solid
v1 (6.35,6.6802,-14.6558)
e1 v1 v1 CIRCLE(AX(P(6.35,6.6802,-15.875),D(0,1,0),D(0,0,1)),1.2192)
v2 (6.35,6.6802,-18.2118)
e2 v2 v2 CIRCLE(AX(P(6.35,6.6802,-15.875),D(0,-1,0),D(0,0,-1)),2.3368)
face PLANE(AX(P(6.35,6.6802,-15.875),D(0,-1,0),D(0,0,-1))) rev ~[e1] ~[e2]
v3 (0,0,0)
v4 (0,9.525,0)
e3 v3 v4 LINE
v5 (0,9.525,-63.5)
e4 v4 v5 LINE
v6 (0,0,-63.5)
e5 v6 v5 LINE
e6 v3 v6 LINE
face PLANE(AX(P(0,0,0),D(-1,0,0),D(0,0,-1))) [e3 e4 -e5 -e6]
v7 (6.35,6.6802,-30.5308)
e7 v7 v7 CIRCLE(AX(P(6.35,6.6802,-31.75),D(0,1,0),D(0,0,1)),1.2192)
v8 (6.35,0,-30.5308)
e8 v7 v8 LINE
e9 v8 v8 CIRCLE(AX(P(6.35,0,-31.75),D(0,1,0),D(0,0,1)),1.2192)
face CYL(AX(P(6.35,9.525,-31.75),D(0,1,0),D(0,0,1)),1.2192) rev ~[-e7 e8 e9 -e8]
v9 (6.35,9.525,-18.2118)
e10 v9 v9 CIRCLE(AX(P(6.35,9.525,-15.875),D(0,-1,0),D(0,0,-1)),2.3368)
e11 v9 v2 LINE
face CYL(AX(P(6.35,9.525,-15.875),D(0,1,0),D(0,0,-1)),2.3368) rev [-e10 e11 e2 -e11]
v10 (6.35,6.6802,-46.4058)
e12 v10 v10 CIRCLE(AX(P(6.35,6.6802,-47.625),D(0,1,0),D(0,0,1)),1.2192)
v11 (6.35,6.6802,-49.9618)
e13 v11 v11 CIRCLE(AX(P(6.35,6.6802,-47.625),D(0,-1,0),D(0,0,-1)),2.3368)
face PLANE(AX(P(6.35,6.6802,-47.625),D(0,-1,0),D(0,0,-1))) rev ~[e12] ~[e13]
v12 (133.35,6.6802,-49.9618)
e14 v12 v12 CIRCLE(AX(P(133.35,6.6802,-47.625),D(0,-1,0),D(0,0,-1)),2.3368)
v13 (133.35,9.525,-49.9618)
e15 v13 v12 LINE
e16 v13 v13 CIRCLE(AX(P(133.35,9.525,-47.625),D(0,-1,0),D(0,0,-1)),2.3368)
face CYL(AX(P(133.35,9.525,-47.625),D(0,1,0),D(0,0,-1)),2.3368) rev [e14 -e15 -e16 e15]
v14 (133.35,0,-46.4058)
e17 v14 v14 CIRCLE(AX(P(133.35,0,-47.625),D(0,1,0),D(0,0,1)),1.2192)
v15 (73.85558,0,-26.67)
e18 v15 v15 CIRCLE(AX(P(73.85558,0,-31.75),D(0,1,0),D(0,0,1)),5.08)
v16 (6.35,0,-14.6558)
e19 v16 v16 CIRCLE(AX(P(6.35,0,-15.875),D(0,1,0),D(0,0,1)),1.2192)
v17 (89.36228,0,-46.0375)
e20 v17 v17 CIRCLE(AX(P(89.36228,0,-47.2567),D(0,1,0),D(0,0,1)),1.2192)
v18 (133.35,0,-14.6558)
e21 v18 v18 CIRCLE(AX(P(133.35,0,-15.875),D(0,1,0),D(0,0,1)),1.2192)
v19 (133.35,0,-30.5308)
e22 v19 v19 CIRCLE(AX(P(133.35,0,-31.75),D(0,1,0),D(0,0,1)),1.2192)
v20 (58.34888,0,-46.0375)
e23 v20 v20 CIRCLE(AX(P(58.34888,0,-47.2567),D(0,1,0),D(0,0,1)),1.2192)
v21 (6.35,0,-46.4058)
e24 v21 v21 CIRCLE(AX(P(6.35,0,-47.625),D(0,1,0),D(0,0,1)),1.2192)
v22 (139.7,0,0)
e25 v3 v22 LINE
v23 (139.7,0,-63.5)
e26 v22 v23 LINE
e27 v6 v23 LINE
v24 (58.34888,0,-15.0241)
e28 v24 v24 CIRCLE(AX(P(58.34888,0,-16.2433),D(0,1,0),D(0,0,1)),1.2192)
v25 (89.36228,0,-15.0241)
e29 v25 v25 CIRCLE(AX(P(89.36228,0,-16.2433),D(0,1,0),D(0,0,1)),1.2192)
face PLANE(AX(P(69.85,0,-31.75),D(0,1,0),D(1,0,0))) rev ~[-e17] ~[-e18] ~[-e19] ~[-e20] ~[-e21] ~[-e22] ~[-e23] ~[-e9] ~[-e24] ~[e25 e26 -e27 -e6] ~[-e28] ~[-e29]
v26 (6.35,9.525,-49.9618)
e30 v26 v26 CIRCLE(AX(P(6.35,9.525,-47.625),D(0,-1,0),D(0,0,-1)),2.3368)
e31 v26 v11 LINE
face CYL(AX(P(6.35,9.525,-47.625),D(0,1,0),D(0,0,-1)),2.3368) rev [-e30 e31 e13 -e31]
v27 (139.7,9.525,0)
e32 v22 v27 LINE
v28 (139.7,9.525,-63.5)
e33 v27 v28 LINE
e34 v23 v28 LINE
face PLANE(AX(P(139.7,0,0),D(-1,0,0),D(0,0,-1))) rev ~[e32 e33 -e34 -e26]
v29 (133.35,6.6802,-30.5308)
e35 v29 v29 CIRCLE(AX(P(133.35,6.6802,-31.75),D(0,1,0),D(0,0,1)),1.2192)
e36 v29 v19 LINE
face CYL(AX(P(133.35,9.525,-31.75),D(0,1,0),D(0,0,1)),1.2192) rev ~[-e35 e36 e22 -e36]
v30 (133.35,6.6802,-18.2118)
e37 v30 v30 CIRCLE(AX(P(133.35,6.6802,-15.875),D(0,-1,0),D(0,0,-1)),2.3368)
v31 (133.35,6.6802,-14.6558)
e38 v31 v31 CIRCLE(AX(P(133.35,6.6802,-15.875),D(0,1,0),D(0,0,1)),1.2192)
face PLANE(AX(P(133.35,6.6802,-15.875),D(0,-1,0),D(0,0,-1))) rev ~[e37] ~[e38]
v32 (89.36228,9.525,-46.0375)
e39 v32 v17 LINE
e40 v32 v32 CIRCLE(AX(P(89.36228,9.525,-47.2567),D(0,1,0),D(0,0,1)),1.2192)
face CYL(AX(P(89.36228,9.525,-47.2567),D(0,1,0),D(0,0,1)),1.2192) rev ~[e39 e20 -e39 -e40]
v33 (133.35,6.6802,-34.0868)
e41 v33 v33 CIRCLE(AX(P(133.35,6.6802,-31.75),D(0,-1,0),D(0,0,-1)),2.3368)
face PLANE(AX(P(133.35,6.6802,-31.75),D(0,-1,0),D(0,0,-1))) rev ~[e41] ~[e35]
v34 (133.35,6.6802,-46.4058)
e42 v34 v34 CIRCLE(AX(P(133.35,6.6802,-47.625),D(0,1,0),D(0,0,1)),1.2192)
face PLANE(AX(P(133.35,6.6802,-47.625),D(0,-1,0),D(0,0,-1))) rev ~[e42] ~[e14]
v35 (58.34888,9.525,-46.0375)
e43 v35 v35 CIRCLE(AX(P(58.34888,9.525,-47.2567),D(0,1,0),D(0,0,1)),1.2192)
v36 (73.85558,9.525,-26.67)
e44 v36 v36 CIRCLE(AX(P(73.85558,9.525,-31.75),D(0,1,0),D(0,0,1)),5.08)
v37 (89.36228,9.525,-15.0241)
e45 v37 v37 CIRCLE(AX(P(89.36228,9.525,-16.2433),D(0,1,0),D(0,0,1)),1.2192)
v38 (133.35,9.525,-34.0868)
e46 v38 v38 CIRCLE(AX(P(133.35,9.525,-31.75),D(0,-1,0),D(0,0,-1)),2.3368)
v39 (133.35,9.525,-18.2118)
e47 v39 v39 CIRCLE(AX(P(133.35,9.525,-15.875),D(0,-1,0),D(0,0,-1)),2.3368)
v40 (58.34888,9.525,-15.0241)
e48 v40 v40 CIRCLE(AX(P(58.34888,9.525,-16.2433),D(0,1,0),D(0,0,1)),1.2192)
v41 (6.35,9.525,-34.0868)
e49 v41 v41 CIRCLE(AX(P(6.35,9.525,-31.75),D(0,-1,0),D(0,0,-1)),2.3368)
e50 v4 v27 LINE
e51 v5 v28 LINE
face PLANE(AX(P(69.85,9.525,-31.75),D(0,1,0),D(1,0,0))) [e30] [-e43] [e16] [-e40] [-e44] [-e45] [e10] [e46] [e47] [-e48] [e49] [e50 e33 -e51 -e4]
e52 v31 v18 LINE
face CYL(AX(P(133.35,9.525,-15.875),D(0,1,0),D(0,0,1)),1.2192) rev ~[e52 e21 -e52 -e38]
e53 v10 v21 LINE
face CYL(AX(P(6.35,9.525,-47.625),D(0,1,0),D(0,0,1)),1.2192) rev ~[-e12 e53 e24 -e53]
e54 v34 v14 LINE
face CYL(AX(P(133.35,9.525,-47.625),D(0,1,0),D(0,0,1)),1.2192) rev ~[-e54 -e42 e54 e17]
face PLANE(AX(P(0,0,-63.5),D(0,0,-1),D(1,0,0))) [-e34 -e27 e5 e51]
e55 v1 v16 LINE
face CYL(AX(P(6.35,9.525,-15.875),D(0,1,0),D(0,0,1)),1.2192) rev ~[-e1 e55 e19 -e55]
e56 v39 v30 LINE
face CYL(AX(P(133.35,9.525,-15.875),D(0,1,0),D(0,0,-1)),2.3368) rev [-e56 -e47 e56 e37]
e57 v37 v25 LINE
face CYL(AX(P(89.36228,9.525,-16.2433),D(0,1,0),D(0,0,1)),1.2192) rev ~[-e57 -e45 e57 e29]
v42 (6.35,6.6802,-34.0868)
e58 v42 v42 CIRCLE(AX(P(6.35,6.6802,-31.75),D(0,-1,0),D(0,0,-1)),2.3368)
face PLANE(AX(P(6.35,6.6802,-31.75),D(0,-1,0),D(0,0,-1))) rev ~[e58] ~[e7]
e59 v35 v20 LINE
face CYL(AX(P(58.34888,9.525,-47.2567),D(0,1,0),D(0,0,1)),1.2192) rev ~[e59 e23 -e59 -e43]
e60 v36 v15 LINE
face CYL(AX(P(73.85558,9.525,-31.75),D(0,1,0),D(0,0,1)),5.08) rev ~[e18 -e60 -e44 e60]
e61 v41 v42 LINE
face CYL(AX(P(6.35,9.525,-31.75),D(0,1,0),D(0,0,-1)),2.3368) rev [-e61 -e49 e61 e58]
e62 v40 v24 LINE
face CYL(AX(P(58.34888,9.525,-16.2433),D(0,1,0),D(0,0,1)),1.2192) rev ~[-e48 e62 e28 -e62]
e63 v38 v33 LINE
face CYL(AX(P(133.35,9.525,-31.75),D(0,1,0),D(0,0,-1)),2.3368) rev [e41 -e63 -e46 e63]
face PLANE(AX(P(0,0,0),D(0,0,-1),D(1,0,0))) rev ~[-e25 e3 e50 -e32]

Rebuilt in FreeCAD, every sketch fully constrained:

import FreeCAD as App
import Part
import Sketcher
Q = App.Units.Quantity

doc = App.newDocument("Part")
params = doc.addObject("Spreadsheet::Sheet", "Params")
for row, (alias, value) in enumerate([
    ("sketch1_width", "5.5 in"),
    ("sketch1_height", "2.5 in"),
    ("pad1_length", "0.375 in"),
    ("sketch2_diameter", "0.4 in"),
    ("sketch2_diameter2", "0.096 in"),
    ("pocket1_length", "0.375 in"),
    ("sketch3_diameter", "0.184 in"),
    ("pocket2_length", "0.112 in"),
    ("sketch4_diameter", "0.096 in"),
], start=1):
    params.set(f"A{row}", alias)
    params.set(f"B{row}", "=" + value)
    params.setAlias(f"B{row}", alias)

body = doc.addObject("PartDesign::Body", "Body")

# Sketch on XZ plane
sketch1 = body.newObject("Sketcher::SketchObject", "Sketch")
sketch1.AttachmentSupport = (doc.getObject("XZ_Plane"), [""])
sketch1.MapMode = "FlatFace"
sketch1.addGeometry(Part.LineSegment(App.Vector(0, -64, 0), App.Vector(0, 0, 0)), False)
sketch1.addGeometry(Part.LineSegment(App.Vector(0, 0, 0), App.Vector(140, 0, 0)), False)
sketch1.addGeometry(Part.LineSegment(App.Vector(140, 0, 0), App.Vector(140, -64, 0)), False)
sketch1.addGeometry(Part.LineSegment(App.Vector(140, -64, 0), App.Vector(0, -64, 0)), False)
sketch1.addConstraint(Sketcher.Constraint("Coincident", 0, 2, 1, 1))
sketch1.addConstraint(Sketcher.Constraint("Coincident", 1, 2, 2, 1))
sketch1.addConstraint(Sketcher.Constraint("Coincident", 2, 2, 3, 1))
sketch1.addConstraint(Sketcher.Constraint("Coincident", 3, 2, 0, 1))
sketch1.addConstraint(Sketcher.Constraint("Vertical", 0))
sketch1.addConstraint(Sketcher.Constraint("Horizontal", 1))
sketch1.addConstraint(Sketcher.Constraint("Vertical", 2))
sketch1.addConstraint(Sketcher.Constraint("Horizontal", 3))
sketch1.addConstraint(Sketcher.Constraint("Coincident", 0, 2, -1, 1))
sketch1.addConstraint(Sketcher.Constraint("DistanceX", 1, 1, 1, 2, Q("5.5 in")))
sketch1.addConstraint(Sketcher.Constraint("DistanceY", 0, 1, 0, 2, Q("2.5 in")))
sketch1.setExpression("Constraints[9]", "Params.sketch1_width")
sketch1.setExpression("Constraints[10]", "Params.sketch1_height")
pad1 = body.newObject("PartDesign::Pad", "Pad")
pad1.Profile = sketch1
pad1.setExpression("Length", "Params.pad1_length")
pad1.Reversed = True

# Sketch on XZ plane
sketch2 = body.newObject("Sketcher::SketchObject", "Sketch001")
sketch2.AttachmentSupport = (doc.getObject("XZ_Plane"), [""])
sketch2.MapMode = "FlatFace"
sketch2.AttachmentOffset = App.Placement(App.Vector(0, 0, -0.375 * 25.4), App.Rotation())
sketch2.addGeometry(Part.Circle(App.Vector(58.3, -47.3, 0), App.Vector(0, 0, 1), 1.2), False)
sketch2.addGeometry(Part.Circle(App.Vector(89.4, -47.3, 0), App.Vector(0, 0, 1), 1.2), False)
sketch2.addGeometry(Part.Circle(App.Vector(89.4, -16.2, 0), App.Vector(0, 0, 1), 1.2), False)
sketch2.addGeometry(Part.Circle(App.Vector(58.3, -16.2, 0), App.Vector(0, 0, 1), 1.2), False)
sketch2.addGeometry(Part.Circle(App.Vector(73.9, -31.8, 0), App.Vector(0, 0, 1), 5.1), False)
sketch2.addConstraint(Sketcher.Constraint("Equal", 0, 1))
sketch2.addConstraint(Sketcher.Constraint("Equal", 1, 2))
sketch2.addConstraint(Sketcher.Constraint("Equal", 2, 3))
sketch2.addConstraint(Sketcher.Constraint("Horizontal", 0, 3, 1, 3))
sketch2.addConstraint(Sketcher.Constraint("Horizontal", 2, 3, 3, 3))
sketch2.addConstraint(Sketcher.Constraint("Vertical", 1, 3, 2, 3))
sketch2.addConstraint(Sketcher.Constraint("Vertical", 0, 3, 3, 3))
sketch2.addConstraint(Sketcher.Constraint("Diameter", 4, Q("0.4 in")))
sketch2.addConstraint(Sketcher.Constraint("Diameter", 0, Q("0.096 in")))
sketch2.addConstraint(Sketcher.Constraint("DistanceY", 4, 3, -1, 1, Q("1.25 in")))
sketch2.addConstraint(Sketcher.Constraint("DistanceX", 0, 3, 1, 3, Q("1.221 in")))
sketch2.addConstraint(Sketcher.Constraint("DistanceY", 1, 3, 2, 3, Q("1.221 in")))
sketch2.addConstraint(Sketcher.Constraint("DistanceX", -1, 1, 0, 3, Q("2.2972 in")))
sketch2.addConstraint(Sketcher.Constraint("DistanceY", 0, 3, -1, 1, Q("1.8605 in")))
sketch2.addConstraint(Sketcher.Constraint("DistanceX", -1, 1, 4, 3, Q("2.9077 in")))
sketch2.setExpression("Constraints[7]", "Params.sketch2_diameter")
sketch2.setExpression("Constraints[8]", "Params.sketch2_diameter2")
pocket1 = body.newObject("PartDesign::Pocket", "Pocket")
pocket1.Profile = sketch2
pocket1.setExpression("Length", "Params.pocket1_length")
pocket1.Reversed = True

# Sketch on XZ plane
sketch3 = body.newObject("Sketcher::SketchObject", "Sketch002")
sketch3.AttachmentSupport = (doc.getObject("XZ_Plane"), [""])
sketch3.MapMode = "FlatFace"
sketch3.AttachmentOffset = App.Placement(App.Vector(0, 0, -0.375 * 25.4), App.Rotation())
sketch3.addGeometry(Part.Circle(App.Vector(6.3, -15.9, 0), App.Vector(0, 0, 1), 2.3), False)
sketch3.addGeometry(Part.Circle(App.Vector(6.3, -31.8, 0), App.Vector(0, 0, 1), 2.3), False)
sketch3.addGeometry(Part.Circle(App.Vector(6.3, -47.6, 0), App.Vector(0, 0, 1), 2.3), False)
sketch3.addGeometry(Part.Circle(App.Vector(133.3, -47.6, 0), App.Vector(0, 0, 1), 2.3), False)
sketch3.addGeometry(Part.Circle(App.Vector(133.3, -31.8, 0), App.Vector(0, 0, 1), 2.3), False)
sketch3.addGeometry(Part.Circle(App.Vector(133.3, -15.9, 0), App.Vector(0, 0, 1), 2.3), False)
sketch3.addConstraint(Sketcher.Constraint("Equal", 0, 1))
sketch3.addConstraint(Sketcher.Constraint("Equal", 1, 2))
sketch3.addConstraint(Sketcher.Constraint("Equal", 2, 3))
sketch3.addConstraint(Sketcher.Constraint("Equal", 3, 4))
sketch3.addConstraint(Sketcher.Constraint("Equal", 4, 5))
sketch3.addConstraint(Sketcher.Constraint("Horizontal", 2, 3, 3, 3))
sketch3.addConstraint(Sketcher.Constraint("Horizontal", 1, 3, 4, 3))
sketch3.addConstraint(Sketcher.Constraint("Horizontal", 0, 3, 5, 3))
sketch3.addConstraint(Sketcher.Constraint("Vertical", 0, 3, 1, 3))
sketch3.addConstraint(Sketcher.Constraint("Vertical", 1, 3, 2, 3))
sketch3.addConstraint(Sketcher.Constraint("Vertical", 3, 3, 4, 3))
sketch3.addConstraint(Sketcher.Constraint("Vertical", 4, 3, 5, 3))
sketch3.addConstraint(Sketcher.Constraint("Diameter", 0, Q("0.184 in")))
sketch3.addConstraint(Sketcher.Constraint("DistanceX", 2, 3, 3, 3, Q("5 in")))
sketch3.addConstraint(Sketcher.Constraint("DistanceX", -1, 1, 0, 3, Q("0.25 in")))
sketch3.addConstraint(Sketcher.Constraint("DistanceY", 1, 3, -1, 1, Q("1.25 in")))
sketch3.addConstraint(Sketcher.Constraint("DistanceY", 2, 3, 0, 3, Q("1.25 in")))
sketch3.addConstraint(Sketcher.Constraint("DistanceY", 0, 3, -1, 1, Q("0.625 in")))
sketch3.setExpression("Constraints[12]", "Params.sketch3_diameter")
pocket2 = body.newObject("PartDesign::Pocket", "Pocket001")
pocket2.Profile = sketch3
pocket2.setExpression("Length", "Params.pocket2_length")
pocket2.Reversed = True

# Sketch on XZ plane
sketch4 = body.newObject("Sketcher::SketchObject", "Sketch003")
sketch4.AttachmentSupport = (doc.getObject("XZ_Plane"), [""])
sketch4.MapMode = "FlatFace"
sketch4.AttachmentOffset = App.Placement(App.Vector(0, 0, -0.375 * 25.4), App.Rotation())
sketch4.addGeometry(Part.Circle(App.Vector(6.3, -47.6, 0), App.Vector(0, 0, 1), 1.2), False)
sketch4.addGeometry(Part.Circle(App.Vector(6.3, -31.8, 0), App.Vector(0, 0, 1), 1.2), False)
sketch4.addGeometry(Part.Circle(App.Vector(6.3, -15.9, 0), App.Vector(0, 0, 1), 1.2), False)
sketch4.addGeometry(Part.Circle(App.Vector(133.3, -15.9, 0), App.Vector(0, 0, 1), 1.2), False)
sketch4.addGeometry(Part.Circle(App.Vector(133.3, -31.8, 0), App.Vector(0, 0, 1), 1.2), False)
sketch4.addGeometry(Part.Circle(App.Vector(133.3, -47.6, 0), App.Vector(0, 0, 1), 1.2), False)
sketch4.addConstraint(Sketcher.Constraint("Equal", 0, 1))
sketch4.addConstraint(Sketcher.Constraint("Equal", 1, 2))
sketch4.addConstraint(Sketcher.Constraint("Equal", 2, 3))
sketch4.addConstraint(Sketcher.Constraint("Equal", 3, 4))
sketch4.addConstraint(Sketcher.Constraint("Equal", 4, 5))
sketch4.addConstraint(Sketcher.Constraint("Horizontal", 2, 3, 3, 3))
sketch4.addConstraint(Sketcher.Constraint("Horizontal", 1, 3, 4, 3))
sketch4.addConstraint(Sketcher.Constraint("Horizontal", 0, 3, 5, 3))
sketch4.addConstraint(Sketcher.Constraint("Vertical", 0, 3, 1, 3))
sketch4.addConstraint(Sketcher.Constraint("Vertical", 1, 3, 2, 3))
sketch4.addConstraint(Sketcher.Constraint("Vertical", 3, 3, 4, 3))
sketch4.addConstraint(Sketcher.Constraint("Vertical", 4, 3, 5, 3))
sketch4.addConstraint(Sketcher.Constraint("Diameter", 0, Q("0.096 in")))
sketch4.addConstraint(Sketcher.Constraint("DistanceX", 2, 3, 3, 3, Q("5 in")))
sketch4.addConstraint(Sketcher.Constraint("DistanceX", -1, 1, 0, 3, Q("0.25 in")))
sketch4.addConstraint(Sketcher.Constraint("DistanceY", 1, 3, -1, 1, Q("1.25 in")))
sketch4.addConstraint(Sketcher.Constraint("DistanceY", 0, 3, 2, 3, Q("1.25 in")))
sketch4.addConstraint(Sketcher.Constraint("DistanceY", 0, 3, -1, 1, Q("1.875 in")))
sketch4.setExpression("Constraints[12]", "Params.sketch4_diameter")
pocket3 = body.newObject("PartDesign::Pocket", "Pocket002")
pocket3.Profile = sketch4
pocket3.Type = "ThroughAll"
pocket3.Reversed = True

doc.recompute()
